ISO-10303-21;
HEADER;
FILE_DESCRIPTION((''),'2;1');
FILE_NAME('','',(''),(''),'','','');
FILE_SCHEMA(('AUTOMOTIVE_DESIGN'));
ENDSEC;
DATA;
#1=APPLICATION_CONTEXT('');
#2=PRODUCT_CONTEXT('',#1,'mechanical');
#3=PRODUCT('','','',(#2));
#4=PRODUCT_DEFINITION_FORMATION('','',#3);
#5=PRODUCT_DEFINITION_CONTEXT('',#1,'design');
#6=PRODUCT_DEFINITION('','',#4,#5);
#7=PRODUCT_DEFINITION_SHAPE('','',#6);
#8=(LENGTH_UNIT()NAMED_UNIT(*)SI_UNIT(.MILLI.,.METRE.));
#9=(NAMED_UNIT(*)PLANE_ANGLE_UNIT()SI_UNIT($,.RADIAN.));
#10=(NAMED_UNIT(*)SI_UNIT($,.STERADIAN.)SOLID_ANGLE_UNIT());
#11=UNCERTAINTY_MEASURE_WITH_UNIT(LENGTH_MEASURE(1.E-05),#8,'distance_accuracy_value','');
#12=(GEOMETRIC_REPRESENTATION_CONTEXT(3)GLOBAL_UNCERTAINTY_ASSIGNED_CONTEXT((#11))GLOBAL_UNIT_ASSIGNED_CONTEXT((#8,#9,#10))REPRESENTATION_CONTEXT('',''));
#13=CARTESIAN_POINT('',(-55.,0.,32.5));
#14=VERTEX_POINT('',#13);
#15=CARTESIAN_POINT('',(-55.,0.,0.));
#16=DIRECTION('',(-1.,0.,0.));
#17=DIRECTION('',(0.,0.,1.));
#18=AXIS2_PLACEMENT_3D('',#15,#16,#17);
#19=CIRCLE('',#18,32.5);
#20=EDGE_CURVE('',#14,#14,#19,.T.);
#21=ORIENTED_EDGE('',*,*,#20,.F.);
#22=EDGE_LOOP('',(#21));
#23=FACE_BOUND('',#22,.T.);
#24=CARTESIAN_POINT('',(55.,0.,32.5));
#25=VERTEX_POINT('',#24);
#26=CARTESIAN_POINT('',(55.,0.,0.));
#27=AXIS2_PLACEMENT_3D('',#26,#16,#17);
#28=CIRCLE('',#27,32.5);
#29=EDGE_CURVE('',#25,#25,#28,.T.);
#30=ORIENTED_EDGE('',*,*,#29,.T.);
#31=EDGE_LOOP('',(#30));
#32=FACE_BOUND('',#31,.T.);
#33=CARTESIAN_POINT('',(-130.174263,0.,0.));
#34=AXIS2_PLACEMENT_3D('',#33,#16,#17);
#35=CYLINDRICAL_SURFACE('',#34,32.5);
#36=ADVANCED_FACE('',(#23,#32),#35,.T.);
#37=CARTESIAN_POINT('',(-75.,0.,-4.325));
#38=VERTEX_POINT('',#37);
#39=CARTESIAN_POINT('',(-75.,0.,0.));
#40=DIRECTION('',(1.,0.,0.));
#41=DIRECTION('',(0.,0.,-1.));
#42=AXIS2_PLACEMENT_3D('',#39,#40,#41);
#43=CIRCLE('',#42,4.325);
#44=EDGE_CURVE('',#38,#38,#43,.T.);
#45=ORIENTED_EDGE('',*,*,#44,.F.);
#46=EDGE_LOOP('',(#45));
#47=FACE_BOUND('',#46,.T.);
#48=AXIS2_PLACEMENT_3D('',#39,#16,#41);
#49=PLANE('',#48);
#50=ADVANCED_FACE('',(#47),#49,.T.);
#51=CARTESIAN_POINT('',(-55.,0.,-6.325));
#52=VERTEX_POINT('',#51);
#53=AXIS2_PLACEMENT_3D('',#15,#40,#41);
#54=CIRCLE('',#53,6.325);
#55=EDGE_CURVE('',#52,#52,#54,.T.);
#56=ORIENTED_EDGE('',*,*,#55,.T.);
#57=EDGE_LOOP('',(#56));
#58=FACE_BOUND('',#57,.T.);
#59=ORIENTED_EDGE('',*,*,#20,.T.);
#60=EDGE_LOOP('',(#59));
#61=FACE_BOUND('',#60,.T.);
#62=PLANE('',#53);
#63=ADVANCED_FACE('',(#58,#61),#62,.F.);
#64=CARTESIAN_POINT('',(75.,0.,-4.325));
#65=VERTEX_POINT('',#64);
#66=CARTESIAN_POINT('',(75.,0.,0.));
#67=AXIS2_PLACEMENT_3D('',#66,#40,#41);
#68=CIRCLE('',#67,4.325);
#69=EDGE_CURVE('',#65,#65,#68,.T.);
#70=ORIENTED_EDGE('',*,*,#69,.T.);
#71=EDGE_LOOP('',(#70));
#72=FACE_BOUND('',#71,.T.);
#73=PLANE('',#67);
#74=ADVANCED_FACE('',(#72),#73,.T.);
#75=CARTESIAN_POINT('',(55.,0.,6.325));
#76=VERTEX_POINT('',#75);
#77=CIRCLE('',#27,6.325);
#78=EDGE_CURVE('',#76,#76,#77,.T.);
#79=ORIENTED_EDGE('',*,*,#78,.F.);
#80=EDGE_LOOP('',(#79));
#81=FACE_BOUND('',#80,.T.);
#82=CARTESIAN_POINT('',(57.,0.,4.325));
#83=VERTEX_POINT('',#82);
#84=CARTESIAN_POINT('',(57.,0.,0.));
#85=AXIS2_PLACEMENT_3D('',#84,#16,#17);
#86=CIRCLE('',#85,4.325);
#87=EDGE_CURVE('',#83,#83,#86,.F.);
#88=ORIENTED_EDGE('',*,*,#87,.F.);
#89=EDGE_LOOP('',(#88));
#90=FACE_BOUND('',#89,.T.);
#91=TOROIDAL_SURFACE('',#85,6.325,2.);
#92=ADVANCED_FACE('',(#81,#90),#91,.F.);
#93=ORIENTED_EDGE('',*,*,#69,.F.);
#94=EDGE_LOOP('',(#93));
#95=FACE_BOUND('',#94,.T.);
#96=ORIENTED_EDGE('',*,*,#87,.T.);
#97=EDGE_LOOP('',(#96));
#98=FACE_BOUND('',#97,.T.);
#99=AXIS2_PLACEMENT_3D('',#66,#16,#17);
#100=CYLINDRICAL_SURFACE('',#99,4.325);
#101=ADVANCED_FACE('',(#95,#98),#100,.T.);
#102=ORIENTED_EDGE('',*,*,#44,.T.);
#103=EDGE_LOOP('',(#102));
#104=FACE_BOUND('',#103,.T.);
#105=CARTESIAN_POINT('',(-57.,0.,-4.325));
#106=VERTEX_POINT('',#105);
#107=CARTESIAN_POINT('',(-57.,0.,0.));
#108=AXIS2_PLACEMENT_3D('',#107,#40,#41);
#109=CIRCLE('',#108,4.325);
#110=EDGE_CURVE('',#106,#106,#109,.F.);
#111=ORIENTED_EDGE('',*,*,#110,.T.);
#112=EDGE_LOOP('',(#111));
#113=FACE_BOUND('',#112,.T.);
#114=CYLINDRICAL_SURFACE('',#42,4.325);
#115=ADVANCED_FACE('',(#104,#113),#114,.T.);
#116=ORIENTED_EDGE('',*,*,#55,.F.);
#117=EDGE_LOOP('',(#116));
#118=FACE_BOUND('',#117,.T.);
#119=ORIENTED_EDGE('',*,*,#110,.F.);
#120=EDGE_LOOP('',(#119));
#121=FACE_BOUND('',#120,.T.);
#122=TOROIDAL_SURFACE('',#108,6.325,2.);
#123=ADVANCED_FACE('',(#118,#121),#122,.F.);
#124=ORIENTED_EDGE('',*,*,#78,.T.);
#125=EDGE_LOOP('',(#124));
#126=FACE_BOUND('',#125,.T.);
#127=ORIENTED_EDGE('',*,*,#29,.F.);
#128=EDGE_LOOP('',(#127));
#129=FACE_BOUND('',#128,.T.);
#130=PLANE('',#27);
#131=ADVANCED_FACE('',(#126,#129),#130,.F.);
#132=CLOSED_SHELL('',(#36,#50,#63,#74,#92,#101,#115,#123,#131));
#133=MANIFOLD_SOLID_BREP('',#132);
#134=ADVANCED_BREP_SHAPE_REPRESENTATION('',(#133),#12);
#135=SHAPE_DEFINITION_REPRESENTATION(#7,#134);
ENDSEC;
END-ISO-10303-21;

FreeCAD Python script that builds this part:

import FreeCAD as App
import Part
import Sketcher

V = App.Vector


def edges_at(feature, points):
    """Names of the edges that pass closest to the given points."""
    edges = feature.Shape.Edges
    near = lambda p: min(range(len(edges)), key=lambda i: edges[i].distToShape(Part.Vertex(*p))[0])
    return sorted({f"Edge{near(p) + 1}" for p in points})

doc = App.newDocument("Part")
body = doc.addObject("PartDesign::Body", "Body")

sketch1 = body.newObject("Sketcher::SketchObject", "Sketch")
sketch1.AttachmentSupport = (doc.getObject("XZ_Plane"), [""])
sketch1.MapMode = "FlatFace"
sketch1.addGeometry([
    Part.LineSegment(V(-55, -32.5, 0), V(-55, 0, 0)),
    Part.LineSegment(V(-55, 0, 0), V(55, 0, 0)),
    Part.LineSegment(V(55, 0, 0), V(55, -32.5, 0)),
    Part.LineSegment(V(55, -32.5, 0), V(-55, -32.5, 0)),
], False)
sketch1.addConstraint([
    Sketcher.Constraint("Coincident", 0, 2, 1, 1),
    Sketcher.Constraint("Coincident", 1, 2, 2, 1),
    Sketcher.Constraint("Coincident", 2, 2, 3, 1),
    Sketcher.Constraint("Coincident", 3, 2, 0, 1),
    Sketcher.Constraint("Vertical", 0),
    Sketcher.Constraint("Horizontal", 1),
    Sketcher.Constraint("Vertical", 2),
    Sketcher.Constraint("Horizontal", 3),
    Sketcher.Constraint("Symmetric", 0, 2, 1, 2, -1, 1),
    Sketcher.Constraint("DistanceX", 1, 1, 1, 2, 110.0),
    Sketcher.Constraint("DistanceY", 0, 1, 0, 2, 32.5),
])
revolution = body.newObject("PartDesign::Revolution", "Revolution")
revolution.Profile = sketch1
revolution.ReferenceAxis = (sketch1, ["H_Axis"])
revolution.Angle = 360

sketch2 = body.newObject("Sketcher::SketchObject", "Sketch001")
sketch2.AttachmentSupport = (doc.getObject("YZ_Plane"), [""])
sketch2.MapMode = "FlatFace"
sketch2.AttachmentOffset = App.Placement(V(0, 0, 55), App.Rotation())
sketch2.addGeometry(Part.Circle(V(0, 0, 0), V(0, 0, 1), 4.325), False)
sketch2.addConstraint([
    Sketcher.Constraint("Coincident", 0, 3, -1, 1),
    Sketcher.Constraint("Diameter", 0, 8.65),
])
pad1 = body.newObject("PartDesign::Pad", "Pad")
pad1.Profile = sketch2
pad1.Length = 20
doc.recompute()

mirrored = body.newObject("PartDesign::Mirrored", "Mirrored")
mirrored.Originals = [pad1]
mirrored.MirrorPlane = (doc.getObject("YZ_Plane"), [""])
body.Tip = mirrored
doc.recompute()

fillet = body.newObject("PartDesign::Fillet", "Fillet")
fillet.Base = (mirrored, edges_at(mirrored, [(-55, 0, 4.325), (55, 0, 4.325)]))
fillet.Radius = 2

doc.recompute()
